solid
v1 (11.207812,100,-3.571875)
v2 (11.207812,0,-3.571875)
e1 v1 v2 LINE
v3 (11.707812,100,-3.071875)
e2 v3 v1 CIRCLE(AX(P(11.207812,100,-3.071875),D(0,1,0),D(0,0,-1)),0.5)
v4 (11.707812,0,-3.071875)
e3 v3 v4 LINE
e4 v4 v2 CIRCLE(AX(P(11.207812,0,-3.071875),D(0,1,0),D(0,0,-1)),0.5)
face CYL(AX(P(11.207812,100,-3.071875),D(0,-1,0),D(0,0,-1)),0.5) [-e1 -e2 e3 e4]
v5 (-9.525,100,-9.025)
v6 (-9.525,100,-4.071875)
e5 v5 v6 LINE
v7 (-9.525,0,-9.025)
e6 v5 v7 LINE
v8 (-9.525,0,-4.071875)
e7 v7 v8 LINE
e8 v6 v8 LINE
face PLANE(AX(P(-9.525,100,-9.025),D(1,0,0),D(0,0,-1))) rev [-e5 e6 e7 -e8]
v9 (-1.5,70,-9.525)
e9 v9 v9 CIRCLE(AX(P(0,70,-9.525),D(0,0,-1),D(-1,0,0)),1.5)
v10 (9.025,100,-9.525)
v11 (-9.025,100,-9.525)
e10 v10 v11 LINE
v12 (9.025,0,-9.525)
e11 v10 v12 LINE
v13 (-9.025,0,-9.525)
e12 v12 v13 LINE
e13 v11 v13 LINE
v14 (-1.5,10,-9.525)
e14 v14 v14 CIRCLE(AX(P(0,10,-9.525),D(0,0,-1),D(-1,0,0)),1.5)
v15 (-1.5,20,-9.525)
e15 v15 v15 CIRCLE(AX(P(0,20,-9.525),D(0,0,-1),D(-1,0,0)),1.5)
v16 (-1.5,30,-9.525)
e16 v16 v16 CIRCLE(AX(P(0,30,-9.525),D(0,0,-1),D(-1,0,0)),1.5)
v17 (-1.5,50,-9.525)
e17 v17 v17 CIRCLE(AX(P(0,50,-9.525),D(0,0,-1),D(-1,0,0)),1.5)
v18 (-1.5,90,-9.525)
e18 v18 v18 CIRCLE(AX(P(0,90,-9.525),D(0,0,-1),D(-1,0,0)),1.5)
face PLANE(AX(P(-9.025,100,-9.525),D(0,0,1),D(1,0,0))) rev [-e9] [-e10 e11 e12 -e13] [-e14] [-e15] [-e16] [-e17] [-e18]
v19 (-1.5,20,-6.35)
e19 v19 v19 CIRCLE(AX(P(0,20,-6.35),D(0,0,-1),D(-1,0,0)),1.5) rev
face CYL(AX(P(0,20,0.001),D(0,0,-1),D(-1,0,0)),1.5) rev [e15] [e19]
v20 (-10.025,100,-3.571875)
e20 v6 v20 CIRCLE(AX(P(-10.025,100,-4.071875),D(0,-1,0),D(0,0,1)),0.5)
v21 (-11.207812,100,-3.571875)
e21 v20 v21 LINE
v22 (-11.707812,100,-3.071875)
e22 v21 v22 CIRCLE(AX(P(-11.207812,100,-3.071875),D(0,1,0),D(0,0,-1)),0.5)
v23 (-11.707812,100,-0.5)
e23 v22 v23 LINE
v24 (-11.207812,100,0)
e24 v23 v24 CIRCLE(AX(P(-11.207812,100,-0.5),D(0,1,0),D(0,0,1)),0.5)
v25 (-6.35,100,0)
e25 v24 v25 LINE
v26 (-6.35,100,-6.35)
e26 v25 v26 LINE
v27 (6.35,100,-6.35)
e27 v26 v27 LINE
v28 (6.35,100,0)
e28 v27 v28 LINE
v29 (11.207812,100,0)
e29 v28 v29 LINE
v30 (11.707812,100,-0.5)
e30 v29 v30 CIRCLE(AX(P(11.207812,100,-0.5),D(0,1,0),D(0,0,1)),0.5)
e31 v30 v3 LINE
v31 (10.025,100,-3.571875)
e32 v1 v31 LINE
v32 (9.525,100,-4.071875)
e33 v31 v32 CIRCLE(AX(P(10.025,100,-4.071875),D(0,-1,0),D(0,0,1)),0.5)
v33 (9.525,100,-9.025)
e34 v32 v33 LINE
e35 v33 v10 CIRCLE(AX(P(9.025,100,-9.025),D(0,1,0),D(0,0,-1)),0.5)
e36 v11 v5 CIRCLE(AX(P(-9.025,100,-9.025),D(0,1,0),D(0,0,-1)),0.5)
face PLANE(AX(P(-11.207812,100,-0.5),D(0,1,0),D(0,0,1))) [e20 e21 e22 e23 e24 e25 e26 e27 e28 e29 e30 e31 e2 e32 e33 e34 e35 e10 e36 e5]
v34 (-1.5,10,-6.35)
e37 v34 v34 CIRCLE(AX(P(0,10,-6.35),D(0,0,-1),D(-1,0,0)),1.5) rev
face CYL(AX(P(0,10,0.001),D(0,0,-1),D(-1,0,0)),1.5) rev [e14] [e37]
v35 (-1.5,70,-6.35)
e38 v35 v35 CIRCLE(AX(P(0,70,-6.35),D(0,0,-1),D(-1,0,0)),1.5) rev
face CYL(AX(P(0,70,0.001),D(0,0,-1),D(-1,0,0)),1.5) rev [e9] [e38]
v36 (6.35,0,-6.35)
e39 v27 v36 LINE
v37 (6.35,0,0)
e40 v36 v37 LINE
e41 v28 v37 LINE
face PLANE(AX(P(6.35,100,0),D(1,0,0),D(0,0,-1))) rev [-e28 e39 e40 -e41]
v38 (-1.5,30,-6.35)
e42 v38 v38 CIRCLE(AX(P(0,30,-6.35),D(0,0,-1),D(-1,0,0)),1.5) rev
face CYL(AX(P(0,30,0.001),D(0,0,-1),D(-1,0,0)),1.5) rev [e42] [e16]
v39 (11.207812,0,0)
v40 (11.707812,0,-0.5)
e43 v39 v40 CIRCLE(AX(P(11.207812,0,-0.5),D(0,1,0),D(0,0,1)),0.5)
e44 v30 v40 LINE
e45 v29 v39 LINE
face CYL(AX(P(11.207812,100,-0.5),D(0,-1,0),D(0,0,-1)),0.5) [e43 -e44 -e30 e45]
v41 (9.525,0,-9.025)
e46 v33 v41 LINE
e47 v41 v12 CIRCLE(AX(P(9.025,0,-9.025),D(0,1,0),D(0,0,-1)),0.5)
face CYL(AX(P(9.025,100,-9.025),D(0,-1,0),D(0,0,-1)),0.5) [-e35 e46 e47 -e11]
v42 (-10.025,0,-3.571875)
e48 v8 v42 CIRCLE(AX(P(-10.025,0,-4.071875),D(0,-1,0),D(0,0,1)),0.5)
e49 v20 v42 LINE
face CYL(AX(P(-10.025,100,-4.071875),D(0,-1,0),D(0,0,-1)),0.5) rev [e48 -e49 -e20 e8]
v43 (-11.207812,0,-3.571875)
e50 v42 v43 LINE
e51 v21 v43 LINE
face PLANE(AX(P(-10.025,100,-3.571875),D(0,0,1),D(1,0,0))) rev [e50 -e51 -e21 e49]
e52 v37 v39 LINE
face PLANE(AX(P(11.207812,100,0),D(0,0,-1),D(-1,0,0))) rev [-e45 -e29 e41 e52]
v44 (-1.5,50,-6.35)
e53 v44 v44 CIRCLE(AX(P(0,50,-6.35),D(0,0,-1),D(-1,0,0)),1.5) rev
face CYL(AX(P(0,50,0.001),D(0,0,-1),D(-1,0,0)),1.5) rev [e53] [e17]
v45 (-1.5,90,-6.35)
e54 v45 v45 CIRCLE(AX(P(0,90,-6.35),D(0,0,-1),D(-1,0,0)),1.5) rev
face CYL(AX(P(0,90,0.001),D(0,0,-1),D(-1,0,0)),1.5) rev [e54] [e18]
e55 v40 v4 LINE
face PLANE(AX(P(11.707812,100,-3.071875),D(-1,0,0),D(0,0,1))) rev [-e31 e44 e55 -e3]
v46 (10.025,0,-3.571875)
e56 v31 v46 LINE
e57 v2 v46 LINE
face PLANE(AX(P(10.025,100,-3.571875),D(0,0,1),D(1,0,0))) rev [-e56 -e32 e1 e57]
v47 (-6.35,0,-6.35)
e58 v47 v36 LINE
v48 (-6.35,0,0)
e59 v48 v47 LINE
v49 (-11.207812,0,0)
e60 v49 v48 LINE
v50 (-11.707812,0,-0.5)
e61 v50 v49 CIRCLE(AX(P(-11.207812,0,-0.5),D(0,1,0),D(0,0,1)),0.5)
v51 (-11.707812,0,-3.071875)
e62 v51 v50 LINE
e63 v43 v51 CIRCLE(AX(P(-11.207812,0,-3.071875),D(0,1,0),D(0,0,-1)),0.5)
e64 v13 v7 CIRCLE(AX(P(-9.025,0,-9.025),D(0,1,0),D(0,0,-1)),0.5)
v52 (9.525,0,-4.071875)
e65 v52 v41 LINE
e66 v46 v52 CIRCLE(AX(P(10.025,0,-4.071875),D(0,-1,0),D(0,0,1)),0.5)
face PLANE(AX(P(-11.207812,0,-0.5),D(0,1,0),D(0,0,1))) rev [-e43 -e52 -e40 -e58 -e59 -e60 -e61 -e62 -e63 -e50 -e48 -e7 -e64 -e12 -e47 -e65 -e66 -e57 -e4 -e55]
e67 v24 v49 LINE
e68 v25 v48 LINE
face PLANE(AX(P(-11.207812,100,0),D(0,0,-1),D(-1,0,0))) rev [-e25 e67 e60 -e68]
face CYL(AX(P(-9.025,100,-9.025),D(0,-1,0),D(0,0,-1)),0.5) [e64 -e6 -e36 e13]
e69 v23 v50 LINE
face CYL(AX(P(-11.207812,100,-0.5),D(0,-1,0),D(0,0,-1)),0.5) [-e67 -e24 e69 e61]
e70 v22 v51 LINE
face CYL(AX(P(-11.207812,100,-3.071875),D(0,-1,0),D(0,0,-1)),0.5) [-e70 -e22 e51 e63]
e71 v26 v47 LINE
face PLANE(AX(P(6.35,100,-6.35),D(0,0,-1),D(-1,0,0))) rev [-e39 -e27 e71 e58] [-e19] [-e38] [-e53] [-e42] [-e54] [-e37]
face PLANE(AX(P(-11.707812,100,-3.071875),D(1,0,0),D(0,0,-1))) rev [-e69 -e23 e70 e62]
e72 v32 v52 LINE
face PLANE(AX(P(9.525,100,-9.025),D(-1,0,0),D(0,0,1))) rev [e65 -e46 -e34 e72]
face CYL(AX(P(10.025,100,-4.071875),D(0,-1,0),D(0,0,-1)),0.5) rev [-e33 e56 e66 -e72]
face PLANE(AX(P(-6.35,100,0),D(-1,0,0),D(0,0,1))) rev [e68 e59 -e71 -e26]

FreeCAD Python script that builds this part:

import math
import FreeCAD as App
import Part
import Sketcher

V = App.Vector

doc = App.newDocument("Part")
params = doc.addObject("Spreadsheet::Sheet", "Params")
for row, (alias, value) in enumerate([
    ("sketch1_radius", "0.5 mm"),
    ("sketch1_width", "12.7 mm"),
    ("sketch1_width2", "18.05 mm"),
    ("sketch1_height", "6.35 mm"),
    ("pad1_length", "100 mm"),
    ("sketch2_diameter", "3 mm"),
    ("sketch3_diameter", "3 mm"),
    ("sketch4_diameter", "3 mm"),
    ("sketch5_diameter", "3 mm"),
    ("sketch6_diameter", "3 mm"),
    ("sketch7_diameter", "3 mm"),
], start=1):
    params.set(f"A{row}", alias)
    params.set(f"B{row}", "=" + value)
    params.setAlias(f"B{row}", alias)

body = doc.addObject("PartDesign::Body", "Body")

sketch1 = body.newObject("Sketcher::SketchObject", "Sketch")
sketch1.AttachmentSupport = (doc.getObject("XZ_Plane"), [""])
sketch1.MapMode = "FlatFace"
sketch1.addGeometry(Part.LineSegment(V(6.35, 0, 0), V(11.21, 0, 0)), False)
sketch1.addGeometry(Part.ArcOfCircle(Part.Circle(V(11.21, -0.5, 0), V(0, 0, 1), 0.5), math.radians(0), math.radians(90)), False)
sketch1.addGeometry(Part.LineSegment(V(11.71, -0.5, 0), V(11.71, -3.07, 0)), False)
sketch1.addGeometry(Part.ArcOfCircle(Part.Circle(V(11.21, -3.07, 0), V(0, 0, 1), 0.5), math.radians(-90), math.radians(0)), False)
sketch1.addGeometry(Part.LineSegment(V(11.21, -3.57, 0), V(10.03, -3.57, 0)), False)
sketch1.addGeometry(Part.ArcOfCircle(Part.Circle(V(10.02, -4.07, 0), V(0, 0, 1), 0.5), math.radians(90), math.radians(180)), False)
sketch1.addGeometry(Part.LineSegment(V(9.53, -4.07, 0), V(9.53, -9.03, 0)), False)
sketch1.addGeometry(Part.ArcOfCircle(Part.Circle(V(9.03, -9.03, 0), V(0, 0, 1), 0.5), math.radians(-90), math.radians(0)), False)
sketch1.addGeometry(Part.LineSegment(V(9.03, -9.53, 0), V(-9.03, -9.53, 0)), False)
sketch1.addGeometry(Part.ArcOfCircle(Part.Circle(V(-9.03, -9.03, 0), V(0, 0, 1), 0.5), math.radians(180), math.radians(270)), False)
sketch1.addGeometry(Part.LineSegment(V(-9.53, -9.03, 0), V(-9.53, -4.07, 0)), False)
sketch1.addGeometry(Part.ArcOfCircle(Part.Circle(V(-10.02, -4.07, 0), V(0, 0, 1), 0.5), math.radians(0), math.radians(90)), False)
sketch1.addGeometry(Part.LineSegment(V(-10.03, -3.57, 0), V(-11.21, -3.57, 0)), False)
sketch1.addGeometry(Part.ArcOfCircle(Part.Circle(V(-11.21, -3.07, 0), V(0, 0, 1), 0.5), math.radians(180), math.radians(270)), False)
sketch1.addGeometry(Part.LineSegment(V(-11.71, -3.07, 0), V(-11.71, -0.5, 0)), False)
sketch1.addGeometry(Part.ArcOfCircle(Part.Circle(V(-11.21, -0.5, 0), V(0, 0, 1), 0.5), math.radians(90), math.radians(180)), False)
sketch1.addGeometry(Part.LineSegment(V(-11.21, 0, 0), V(-6.35, 0, 0)), False)
sketch1.addGeometry(Part.LineSegment(V(-6.35, 0, 0), V(-6.35, -6.35, 0)), False)
sketch1.addGeometry(Part.LineSegment(V(-6.35, -6.35, 0), V(6.35, -6.35, 0)), False)
sketch1.addGeometry(Part.LineSegment(V(6.35, -6.35, 0), V(6.35, 0, 0)), False)
sketch1.addConstraint(Sketcher.Constraint("Tangent", 0, 2, 1, 2))
sketch1.addConstraint(Sketcher.Constraint("Tangent", 1, 1, 2, 1))
sketch1.addConstraint(Sketcher.Constraint("Tangent", 2, 2, 3, 2))
sketch1.addConstraint(Sketcher.Constraint("Tangent", 3, 1, 4, 1))
sketch1.addConstraint(Sketcher.Constraint("Tangent", 4, 2, 5, 1))
sketch1.addConstraint(Sketcher.Constraint("Tangent", 5, 2, 6, 1))
sketch1.addConstraint(Sketcher.Constraint("Tangent", 6, 2, 7, 2))
sketch1.addConstraint(Sketcher.Constraint("Tangent", 7, 1, 8, 1))
sketch1.addConstraint(Sketcher.Constraint("Tangent", 8, 2, 9, 2))
sketch1.addConstraint(Sketcher.Constraint("Tangent", 9, 1, 10, 1))
sketch1.addConstraint(Sketcher.Constraint("Tangent", 10, 2, 11, 1))
sketch1.addConstraint(Sketcher.Constraint("Tangent", 11, 2, 12, 1))
sketch1.addConstraint(Sketcher.Constraint("Tangent", 12, 2, 13, 2))
sketch1.addConstraint(Sketcher.Constraint("Tangent", 13, 1, 14, 1))
sketch1.addConstraint(Sketcher.Constraint("Tangent", 14, 2, 15, 2))
sketch1.addConstraint(Sketcher.Constraint("Tangent", 15, 1, 16, 1))
sketch1.addConstraint(Sketcher.Constraint("Coincident", 16, 2, 17, 1))
sketch1.addConstraint(Sketcher.Constraint("Coincident", 17, 2, 18, 1))
sketch1.addConstraint(Sketcher.Constraint("Coincident", 18, 2, 19, 1))
sketch1.addConstraint(Sketcher.Constraint("Coincident", 19, 2, 0, 1))
sketch1.addConstraint(Sketcher.Constraint("Horizontal", 0))
sketch1.addConstraint(Sketcher.Constraint("Vertical", 2))
sketch1.addConstraint(Sketcher.Constraint("Horizontal", 4))
sketch1.addConstraint(Sketcher.Constraint("Vertical", 6))
sketch1.addConstraint(Sketcher.Constraint("Horizontal", 8))
sketch1.addConstraint(Sketcher.Constraint("Vertical", 10))
sketch1.addConstraint(Sketcher.Constraint("Horizontal", 12))
sketch1.addConstraint(Sketcher.Constraint("Vertical", 14))
sketch1.addConstraint(Sketcher.Constraint("Horizontal", 16))
sketch1.addConstraint(Sketcher.Constraint("Vertical", 17))
sketch1.addConstraint(Sketcher.Constraint("Horizontal", 18))
sketch1.addConstraint(Sketcher.Constraint("Vertical", 19))
sketch1.addConstraint(Sketcher.Constraint("Equal", 1, 3))
sketch1.addConstraint(Sketcher.Constraint("Equal", 3, 5))
sketch1.addConstraint(Sketcher.Constraint("Equal", 5, 7))
sketch1.addConstraint(Sketcher.Constraint("Equal", 7, 9))
sketch1.addConstraint(Sketcher.Constraint("Equal", 9, 11))
sketch1.addConstraint(Sketcher.Constraint("Equal", 11, 13))
sketch1.addConstraint(Sketcher.Constraint("Equal", 13, 15))
sketch1.addConstraint(Sketcher.Constraint("Symmetric", 0, 2, 15, 1, -1, 1))
sketch1.addConstraint(Sketcher.Constraint("Symmetric", 5, 3, 11, 3, -2))
sketch1.addConstraint(Sketcher.Constraint("Symmetric", 16, 2, 19, 2, -2))
sketch1.addConstraint(Sketcher.Constraint("Radius", 1, 0.5))
sketch1.addConstraint(Sketcher.Constraint("DistanceX", 18, 1, 18, 2, 12.7))
sketch1.addConstraint(Sketcher.Constraint("DistanceX", 8, 2, 8, 1, 18.05))
sketch1.addConstraint(Sketcher.Constraint("DistanceY", 17, 2, 17, 1, 6.35))
sketch1.addConstraint(Sketcher.Constraint("DistanceY", 7, 3, -1, 1, 9.025))
sketch1.addConstraint(Sketcher.Constraint("DistanceX", 0, 1, 0, 2, 4.857812))
sketch1.addConstraint(Sketcher.Constraint("DistanceY", 2, 2, 2, 1, 2.571875))
sketch1.setExpression("Constraints[42]", "Params.sketch1_radius")
sketch1.setExpression("Constraints[43]", "Params.sketch1_width")
sketch1.setExpression("Constraints[44]", "Params.sketch1_width2")
sketch1.setExpression("Constraints[45]", "Params.sketch1_height")
pad1 = body.newObject("PartDesign::Pad", "Pad")
pad1.Profile = sketch1
pad1.setExpression("Length", "Params.pad1_length")
pad1.Reversed = True

sketch2 = body.newObject("Sketcher::SketchObject", "Sketch001")
sketch2.AttachmentSupport = (doc.getObject("XY_Plane"), [""])
sketch2.MapMode = "FlatFace"
sketch2.AttachmentOffset = App.Placement(V(0, 0, -9.525), App.Rotation())
sketch2.addGeometry(Part.Circle(V(0, 10, 0), V(0, 0, 1), 1.5), False)
sketch2.addConstraint(Sketcher.Constraint("PointOnObject", 0, 3, -2))
sketch2.addConstraint(Sketcher.Constraint("Diameter", 0, 3.0))
sketch2.addConstraint(Sketcher.Constraint("DistanceY", -1, 1, 0, 3, 10.0))
sketch2.setExpression("Constraints[1]", "Params.sketch2_diameter")
pocket1 = body.newObject("PartDesign::Pocket", "Pocket")
pocket1.Profile = sketch2
pocket1.Type = "UpToFirst"
pocket1.Reversed = True

sketch3 = body.newObject("Sketcher::SketchObject", "Sketch002")
sketch3.AttachmentSupport = (doc.getObject("XY_Plane"), [""])
sketch3.MapMode = "FlatFace"
sketch3.AttachmentOffset = App.Placement(V(0, 0, -9.525), App.Rotation())
sketch3.addGeometry(Part.Circle(V(0, 20, 0), V(0, 0, 1), 1.5), False)
sketch3.addConstraint(Sketcher.Constraint("PointOnObject", 0, 3, -2))
sketch3.addConstraint(Sketcher.Constraint("Diameter", 0, 3.0))
sketch3.addConstraint(Sketcher.Constraint("DistanceY", -1, 1, 0, 3, 20.0))
sketch3.setExpression("Constraints[1]", "Params.sketch3_diameter")
pocket2 = body.newObject("PartDesign::Pocket", "Pocket001")
pocket2.Profile = sketch3
pocket2.Type = "UpToFirst"
pocket2.Reversed = True

sketch4 = body.newObject("Sketcher::SketchObject", "Sketch003")
sketch4.AttachmentSupport = (doc.getObject("XY_Plane"), [""])
sketch4.MapMode = "FlatFace"
sketch4.AttachmentOffset = App.Placement(V(0, 0, -9.525), App.Rotation())
sketch4.addGeometry(Part.Circle(V(0, 30, 0), V(0, 0, 1), 1.5), False)
sketch4.addConstraint(Sketcher.Constraint("PointOnObject", 0, 3, -2))
sketch4.addConstraint(Sketcher.Constraint("Diameter", 0, 3.0))
sketch4.addConstraint(Sketcher.Constraint("DistanceY", -1, 1, 0, 3, 30.0))
sketch4.setExpression("Constraints[1]", "Params.sketch4_diameter")
pocket3 = body.newObject("PartDesign::Pocket", "Pocket002")
pocket3.Profile = sketch4
pocket3.Type = "UpToFirst"
pocket3.Reversed = True

sketch5 = body.newObject("Sketcher::SketchObject", "Sketch004")
sketch5.AttachmentSupport = (doc.getObject("XY_Plane"), [""])
sketch5.MapMode = "FlatFace"
sketch5.AttachmentOffset = App.Placement(V(0, 0, -9.525), App.Rotation())
sketch5.addGeometry(Part.Circle(V(0, 50, 0), V(0, 0, 1), 1.5), False)
sketch5.addConstraint(Sketcher.Constraint("PointOnObject", 0, 3, -2))
sketch5.addConstraint(Sketcher.Constraint("Diameter", 0, 3.0))
sketch5.addConstraint(Sketcher.Constraint("DistanceY", -1, 1, 0, 3, 50.0))
sketch5.setExpression("Constraints[1]", "Params.sketch5_diameter")
pocket4 = body.newObject("PartDesign::Pocket", "Pocket003")
pocket4.Profile = sketch5
pocket4.Type = "UpToFirst"
pocket4.Reversed = True

sketch6 = body.newObject("Sketcher::SketchObject", "Sketch005")
sketch6.AttachmentSupport = (doc.getObject("XY_Plane"), [""])
sketch6.MapMode = "FlatFace"
sketch6.AttachmentOffset = App.Placement(V(0, 0, -9.525), App.Rotation())
sketch6.addGeometry(Part.Circle(V(0, 70, 0), V(0, 0, 1), 1.5), False)
sketch6.addConstraint(Sketcher.Constraint("PointOnObject", 0, 3, -2))
sketch6.addConstraint(Sketcher.Constraint("Diameter", 0, 3.0))
sketch6.addConstraint(Sketcher.Constraint("DistanceY", -1, 1, 0, 3, 70.0))
sketch6.setExpression("Constraints[1]", "Params.sketch6_diameter")
pocket5 = body.newObject("PartDesign::Pocket", "Pocket004")
pocket5.Profile = sketch6
pocket5.Type = "UpToFirst"
pocket5.Reversed = True

sketch7 = body.newObject("Sketcher::SketchObject", "Sketch006")
sketch7.AttachmentSupport = (doc.getObject("XY_Plane"), [""])
sketch7.MapMode = "FlatFace"
sketch7.AttachmentOffset = App.Placement(V(0, 0, -9.525), App.Rotation())
sketch7.addGeometry(Part.Circle(V(0, 90, 0), V(0, 0, 1), 1.5), False)
sketch7.addConstraint(Sketcher.Constraint("PointOnObject", 0, 3, -2))
sketch7.addConstraint(Sketcher.Constraint("Diameter", 0, 3.0))
sketch7.addConstraint(Sketcher.Constraint("DistanceY", -1, 1, 0, 3, 90.0))
sketch7.setExpression("Constraints[1]", "Params.sketch7_diameter")
pocket6 = body.newObject("PartDesign::Pocket", "Pocket005")
pocket6.Profile = sketch7
pocket6.Type = "UpToFirst"
pocket6.Reversed = True

doc.recompute()
